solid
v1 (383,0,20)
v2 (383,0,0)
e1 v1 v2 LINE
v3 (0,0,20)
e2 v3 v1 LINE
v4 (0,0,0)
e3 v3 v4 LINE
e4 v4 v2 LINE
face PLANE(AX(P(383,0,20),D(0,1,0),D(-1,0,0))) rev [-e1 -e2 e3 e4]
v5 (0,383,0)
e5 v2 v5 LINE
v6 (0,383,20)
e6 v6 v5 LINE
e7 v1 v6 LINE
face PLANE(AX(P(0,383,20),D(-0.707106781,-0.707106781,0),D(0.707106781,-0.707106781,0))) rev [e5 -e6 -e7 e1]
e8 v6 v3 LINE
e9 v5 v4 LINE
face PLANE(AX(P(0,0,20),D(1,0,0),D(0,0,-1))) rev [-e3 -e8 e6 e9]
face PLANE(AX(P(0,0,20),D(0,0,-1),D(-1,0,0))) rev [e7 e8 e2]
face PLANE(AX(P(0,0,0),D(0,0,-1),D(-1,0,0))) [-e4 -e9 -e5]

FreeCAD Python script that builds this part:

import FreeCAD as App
import Part
import Sketcher
from FreeCAD import Vector


def add_polygon(sketch, points):
    """Adds a closed chain of lines whose ends are joined by coincident constraints."""
    first, n = sketch.GeometryCount, len(points)
    for a, b in zip(points, points[1:] + points[:1]):
        sketch.addGeometry(Part.LineSegment(App.Vector(*a, 0), App.Vector(*b, 0)), False)
    for i in range(n):
        sketch.addConstraint(Sketcher.Constraint("Coincident", first + i, 2, first + (i + 1) % n, 1))

doc = App.newDocument("Part")
params = doc.addObject("Spreadsheet::Sheet", "Params")
for row, (alias, value) in enumerate([
    ("sketch1_width", "383 mm"),
    ("pad1_length", "20 mm"),
], start=1):
    params.set(f"A{row}", alias)
    params.set(f"B{row}", "=" + value)
    params.setAlias(f"B{row}", alias)

body = doc.addObject("PartDesign::Body", "Body")

# Sketch on XY plane
sketch1 = body.newObject("Sketcher::SketchObject", "Sketch")
sketch1.AttachmentSupport = (doc.getObject("XY_Plane"), [""])
sketch1.MapMode = "FlatFace"
add_polygon(sketch1, [(0, 383), (0, 0), (383, 0)])  # lines 0-2
sketch1.addConstraint([
    Sketcher.Constraint("Vertical", 0),
    Sketcher.Constraint("Horizontal", 1),
    Sketcher.Constraint("Coincident", 0, 2, -1, 1),
    Sketcher.Constraint("Equal", 1, 0),
    Sketcher.Constraint("DistanceX", 1, 1, 1, 2, 383.0),
])
sketch1.setExpression("Constraints[7]", "Params.sketch1_width")
pad1 = body.newObject("PartDesign::Pad", "Pad")
pad1.Profile = sketch1
pad1.setExpression("Length", "Params.pad1_length")

doc.recompute()
